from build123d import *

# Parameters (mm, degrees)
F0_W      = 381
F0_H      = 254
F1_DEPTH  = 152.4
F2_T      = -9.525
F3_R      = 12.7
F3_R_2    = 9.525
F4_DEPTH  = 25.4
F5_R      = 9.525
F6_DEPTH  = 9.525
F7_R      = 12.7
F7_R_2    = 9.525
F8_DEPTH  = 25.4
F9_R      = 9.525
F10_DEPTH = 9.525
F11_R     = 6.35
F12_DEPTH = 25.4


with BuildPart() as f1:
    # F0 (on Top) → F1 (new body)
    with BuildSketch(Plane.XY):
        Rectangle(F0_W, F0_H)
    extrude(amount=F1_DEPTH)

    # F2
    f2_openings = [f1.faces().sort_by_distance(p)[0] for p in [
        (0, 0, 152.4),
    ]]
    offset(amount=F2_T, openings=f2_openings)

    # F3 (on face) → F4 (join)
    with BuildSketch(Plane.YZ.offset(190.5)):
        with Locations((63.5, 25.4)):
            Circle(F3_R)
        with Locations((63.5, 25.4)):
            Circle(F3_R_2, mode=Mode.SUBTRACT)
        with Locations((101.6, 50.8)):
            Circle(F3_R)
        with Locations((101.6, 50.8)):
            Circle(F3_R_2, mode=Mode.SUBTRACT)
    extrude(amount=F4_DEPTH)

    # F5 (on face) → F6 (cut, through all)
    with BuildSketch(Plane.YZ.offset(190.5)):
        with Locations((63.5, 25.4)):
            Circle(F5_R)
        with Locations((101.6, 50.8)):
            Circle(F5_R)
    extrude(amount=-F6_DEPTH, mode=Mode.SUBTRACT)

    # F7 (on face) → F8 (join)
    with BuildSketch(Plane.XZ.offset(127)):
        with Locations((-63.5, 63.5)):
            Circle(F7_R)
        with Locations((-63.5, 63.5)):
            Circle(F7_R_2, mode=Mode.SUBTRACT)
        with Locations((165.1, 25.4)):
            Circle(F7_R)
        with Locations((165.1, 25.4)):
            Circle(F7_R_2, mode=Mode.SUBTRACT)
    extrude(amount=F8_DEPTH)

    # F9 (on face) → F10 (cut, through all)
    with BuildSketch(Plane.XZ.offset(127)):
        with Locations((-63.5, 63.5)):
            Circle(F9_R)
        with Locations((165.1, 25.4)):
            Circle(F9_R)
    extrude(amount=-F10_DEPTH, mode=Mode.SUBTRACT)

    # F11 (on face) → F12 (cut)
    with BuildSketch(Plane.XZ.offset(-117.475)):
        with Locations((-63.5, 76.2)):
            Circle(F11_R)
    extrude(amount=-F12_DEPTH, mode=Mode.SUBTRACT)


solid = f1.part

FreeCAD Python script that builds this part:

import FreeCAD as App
import Part
import Sketcher
Q = App.Units.Quantity


def faces_at(feature, points):
    """Names of the faces that lie closest to the given points."""
    faces = feature.Shape.Faces
    near = lambda p: min(range(len(faces)), key=lambda i: faces[i].distToShape(Part.Vertex(*p))[0])
    return sorted({f"Face{near(p) + 1}" for p in points})


def add_polygon(sketch, points):
    """Adds a closed chain of lines whose ends are joined by coincident constraints."""
    first, n = sketch.GeometryCount, len(points)
    for a, b in zip(points, points[1:] + points[:1]):
        sketch.addGeometry(Part.LineSegment(App.Vector(*a, 0), App.Vector(*b, 0)), False)
    for i in range(n):
        sketch.addConstraint(Sketcher.Constraint("Coincident", first + i, 2, first + (i + 1) % n, 1))

doc = App.newDocument("Part")
params = doc.addObject("Spreadsheet::Sheet", "Params")
for row, (alias, value) in enumerate([
    ("sketch1_width", "15 in"),
    ("sketch1_height", "10 in"),
    ("pad1_length", "6 in"),
    ("thickness_wall", "0.375 in"),
    ("sketch2_diameter", "1 in"),
    ("sketch2_diameter2", "0.75 in"),
    ("pad2_length", "1 in"),
    ("sketch3_diameter", "0.75 in"),
    ("pocket1_length", "0.375 in"),
    ("sketch4_diameter", "1 in"),
    ("sketch4_diameter2", "0.75 in"),
    ("pad3_length", "1 in"),
    ("sketch5_diameter", "0.75 in"),
    ("pocket2_length", "0.375 in"),
    ("sketch6_diameter", "0.5 in"),
    ("pocket3_length", "1 in"),
], start=1):
    params.set(f"A{row}", alias)
    params.set(f"B{row}", "=" + value)
    params.setAlias(f"B{row}", alias)

body = doc.addObject("PartDesign::Body", "Body")

# Sketch on XY plane
sketch1 = body.newObject("Sketcher::SketchObject", "Sketch")
sketch1.AttachmentSupport = (doc.getObject("XY_Plane"), [""])
sketch1.MapMode = "FlatFace"
add_polygon(sketch1, [(-190, 127), (-190, -127), (190, -127), (190, 127)])  # lines 0-3
sketch1.addConstraint(Sketcher.Constraint("Vertical", 0))
sketch1.addConstraint(Sketcher.Constraint("Horizontal", 1))
sketch1.addConstraint(Sketcher.Constraint("Vertical", 2))
sketch1.addConstraint(Sketcher.Constraint("Horizontal", 3))
sketch1.addConstraint(Sketcher.Constraint("Symmetric", 0, 2, 2, 2, -1, 1))
sketch1.addConstraint(Sketcher.Constraint("DistanceX", 1, 1, 1, 2, Q("15 in")))
sketch1.addConstraint(Sketcher.Constraint("DistanceY", 0, 2, 0, 1, Q("10 in")))
sketch1.setExpression("Constraints[9]", "Params.sketch1_width")
sketch1.setExpression("Constraints[10]", "Params.sketch1_height")
pad1 = body.newObject("PartDesign::Pad", "Pad")
pad1.Profile = sketch1
pad1.setExpression("Length", "Params.pad1_length")
doc.recompute()

thickness = body.newObject("PartDesign::Thickness", "Thickness")
thickness.Base = (pad1, faces_at(pad1, [(0, 0, 152.4)]))
thickness.setExpression("Value", "Params.thickness_wall")
thickness.Reversed = True
thickness.Join = "Arc"

# Sketch on YZ plane
sketch2 = body.newObject("Sketcher::SketchObject", "Sketch001")
sketch2.AttachmentSupport = (doc.getObject("YZ_Plane"), [""])
sketch2.MapMode = "FlatFace"
sketch2.AttachmentOffset = App.Placement(App.Vector(0, 0, 7.5 * 25.4), App.Rotation())
sketch2.addGeometry(Part.Circle(App.Vector(64, 25, 0), App.Vector(0, 0, 1), 13), False)
sketch2.addGeometry(Part.Circle(App.Vector(64, 25, 0), App.Vector(0, 0, 1), 10), False)
sketch2.addGeometry(Part.Circle(App.Vector(102, 51, 0), App.Vector(0, 0, 1), 13), False)
sketch2.addGeometry(Part.Circle(App.Vector(102, 51, 0), App.Vector(0, 0, 1), 10), False)
sketch2.addConstraint(Sketcher.Constraint("Coincident", 1, 3, 0, 3))
sketch2.addConstraint(Sketcher.Constraint("Coincident", 3, 3, 2, 3))
sketch2.addConstraint(Sketcher.Constraint("Equal", 0, 2))
sketch2.addConstraint(Sketcher.Constraint("Equal", 1, 3))
sketch2.addConstraint(Sketcher.Constraint("Diameter", 0, Q("1 in")))
sketch2.addConstraint(Sketcher.Constraint("Diameter", 1, Q("0.75 in")))
sketch2.addConstraint(Sketcher.Constraint("DistanceY", -1, 1, 0, 3, Q("1 in")))
sketch2.addConstraint(Sketcher.Constraint("DistanceX", -1, 1, 2, 3, Q("4 in")))
sketch2.addConstraint(Sketcher.Constraint("DistanceY", -1, 1, 2, 3, Q("2 in")))
sketch2.addConstraint(Sketcher.Constraint("DistanceX", -1, 1, 0, 3, Q("2.5 in")))
sketch2.setExpression("Constraints[4]", "Params.sketch2_diameter")
sketch2.setExpression("Constraints[5]", "Params.sketch2_diameter2")
pad2 = body.newObject("PartDesign::Pad", "Pad001")
pad2.Profile = sketch2
pad2.setExpression("Length", "Params.pad2_length")

# Sketch on YZ plane
sketch3 = body.newObject("Sketcher::SketchObject", "Sketch002")
sketch3.AttachmentSupport = (doc.getObject("YZ_Plane"), [""])
sketch3.MapMode = "FlatFace"
sketch3.AttachmentOffset = App.Placement(App.Vector(0, 0, 7.5 * 25.4), App.Rotation())
sketch3.addGeometry(Part.Circle(App.Vector(64, 25, 0), App.Vector(0, 0, 1), 10), False)
sketch3.addGeometry(Part.Circle(App.Vector(102, 51, 0), App.Vector(0, 0, 1), 10), False)
sketch3.addConstraint(Sketcher.Constraint("Equal", 0, 1))
sketch3.addConstraint(Sketcher.Constraint("Diameter", 0, Q("0.75 in")))
sketch3.addConstraint(Sketcher.Constraint("DistanceY", -1, 1, 0, 3, Q("1 in")))
sketch3.addConstraint(Sketcher.Constraint("DistanceX", -1, 1, 1, 3, Q("4 in")))
sketch3.addConstraint(Sketcher.Constraint("DistanceY", -1, 1, 1, 3, Q("2 in")))
sketch3.addConstraint(Sketcher.Constraint("DistanceX", -1, 1, 0, 3, Q("2.5 in")))
sketch3.setExpression("Constraints[1]", "Params.sketch3_diameter")
pocket1 = body.newObject("PartDesign::Pocket", "Pocket")
pocket1.Profile = sketch3
pocket1.setExpression("Length", "Params.pocket1_length")

# Sketch on XZ plane
sketch4 = body.newObject("Sketcher::SketchObject", "Sketch003")
sketch4.AttachmentSupport = (doc.getObject("XZ_Plane"), [""])
sketch4.MapMode = "FlatFace"
sketch4.AttachmentOffset = App.Placement(App.Vector(0, 0, 5 * 25.4), App.Rotation())
sketch4.addGeometry(Part.Circle(App.Vector(-64, 64, 0), App.Vector(0, 0, 1), 13), False)
sketch4.addGeometry(Part.Circle(App.Vector(-64, 64, 0), App.Vector(0, 0, 1), 10), False)
sketch4.addGeometry(Part.Circle(App.Vector(165, 25, 0), App.Vector(0, 0, 1), 13), False)
sketch4.addGeometry(Part.Circle(App.Vector(165, 25, 0), App.Vector(0, 0, 1), 10), False)
sketch4.addConstraint(Sketcher.Constraint("Coincident", 1, 3, 0, 3))
sketch4.addConstraint(Sketcher.Constraint("Coincident", 3, 3, 2, 3))
sketch4.addConstraint(Sketcher.Constraint("Equal", 0, 2))
sketch4.addConstraint(Sketcher.Constraint("Equal", 1, 3))
sketch4.addConstraint(Sketcher.Constraint("Diameter", 0, Q("1 in")))
sketch4.addConstraint(Sketcher.Constraint("Diameter", 1, Q("0.75 in")))
sketch4.addConstraint(Sketcher.Constraint("DistanceY", -1, 1, 2, 3, Q("1 in")))
sketch4.addConstraint(Sketcher.Constraint("DistanceX", 0, 3, 2, 3, Q("9 in")))
sketch4.addConstraint(Sketcher.Constraint("DistanceX", 0, 3, -1, 1, Q("2.5 in")))
sketch4.addConstraint(Sketcher.Constraint("DistanceY", -1, 1, 0, 3, Q("2.5 in")))
sketch4.setExpression("Constraints[4]", "Params.sketch4_diameter")
sketch4.setExpression("Constraints[5]", "Params.sketch4_diameter2")
pad3 = body.newObject("PartDesign::Pad", "Pad002")
pad3.Profile = sketch4
pad3.setExpression("Length", "Params.pad3_length")

# Sketch on XZ plane
sketch5 = body.newObject("Sketcher::SketchObject", "Sketch004")
sketch5.AttachmentSupport = (doc.getObject("XZ_Plane"), [""])
sketch5.MapMode = "FlatFace"
sketch5.AttachmentOffset = App.Placement(App.Vector(0, 0, 5 * 25.4), App.Rotation())
sketch5.addGeometry(Part.Circle(App.Vector(-64, 64, 0), App.Vector(0, 0, 1), 10), False)
sketch5.addGeometry(Part.Circle(App.Vector(165, 25, 0), App.Vector(0, 0, 1), 10), False)
sketch5.addConstraint(Sketcher.Constraint("Equal", 0, 1))
sketch5.addConstraint(Sketcher.Constraint("Diameter", 0, Q("0.75 in")))
sketch5.addConstraint(Sketcher.Constraint("DistanceY", -1, 1, 1, 3, Q("1 in")))
sketch5.addConstraint(Sketcher.Constraint("DistanceX", 0, 3, 1, 3, Q("9 in")))
sketch5.addConstraint(Sketcher.Constraint("DistanceX", 0, 3, -1, 1, Q("2.5 in")))
sketch5.addConstraint(Sketcher.Constraint("DistanceY", -1, 1, 0, 3, Q("2.5 in")))
sketch5.setExpression("Constraints[1]", "Params.sketch5_diameter")
pocket2 = body.newObject("PartDesign::Pocket", "Pocket001")
pocket2.Profile = sketch5
pocket2.setExpression("Length", "Params.pocket2_length")

# Sketch on XZ plane
sketch6 = body.newObject("Sketcher::SketchObject", "Sketch005")
sketch6.AttachmentSupport = (doc.getObject("XZ_Plane"), [""])
sketch6.MapMode = "FlatFace"
sketch6.AttachmentOffset = App.Placement(App.Vector(0, 0, -4.625 * 25.4), App.Rotation())
sketch6.addGeometry(Part.Circle(App.Vector(-64, 76, 0), App.Vector(0, 0, 1), 6), False)
sketch6.addConstraint(Sketcher.Constraint("Diameter", 0, Q("0.5 in")))
sketch6.addConstraint(Sketcher.Constraint("DistanceY", -1, 1, 0, 3, Q("3 in")))
sketch6.addConstraint(Sketcher.Constraint("DistanceX", 0, 3, -1, 1, Q("2.5 in")))
sketch6.setExpression("Constraints[0]", "Params.sketch6_diameter")
pocket3 = body.newObject("PartDesign::Pocket", "Pocket002")
pocket3.Profile = sketch6
pocket3.setExpression("Length", "Params.pocket3_length")

doc.recompute()
